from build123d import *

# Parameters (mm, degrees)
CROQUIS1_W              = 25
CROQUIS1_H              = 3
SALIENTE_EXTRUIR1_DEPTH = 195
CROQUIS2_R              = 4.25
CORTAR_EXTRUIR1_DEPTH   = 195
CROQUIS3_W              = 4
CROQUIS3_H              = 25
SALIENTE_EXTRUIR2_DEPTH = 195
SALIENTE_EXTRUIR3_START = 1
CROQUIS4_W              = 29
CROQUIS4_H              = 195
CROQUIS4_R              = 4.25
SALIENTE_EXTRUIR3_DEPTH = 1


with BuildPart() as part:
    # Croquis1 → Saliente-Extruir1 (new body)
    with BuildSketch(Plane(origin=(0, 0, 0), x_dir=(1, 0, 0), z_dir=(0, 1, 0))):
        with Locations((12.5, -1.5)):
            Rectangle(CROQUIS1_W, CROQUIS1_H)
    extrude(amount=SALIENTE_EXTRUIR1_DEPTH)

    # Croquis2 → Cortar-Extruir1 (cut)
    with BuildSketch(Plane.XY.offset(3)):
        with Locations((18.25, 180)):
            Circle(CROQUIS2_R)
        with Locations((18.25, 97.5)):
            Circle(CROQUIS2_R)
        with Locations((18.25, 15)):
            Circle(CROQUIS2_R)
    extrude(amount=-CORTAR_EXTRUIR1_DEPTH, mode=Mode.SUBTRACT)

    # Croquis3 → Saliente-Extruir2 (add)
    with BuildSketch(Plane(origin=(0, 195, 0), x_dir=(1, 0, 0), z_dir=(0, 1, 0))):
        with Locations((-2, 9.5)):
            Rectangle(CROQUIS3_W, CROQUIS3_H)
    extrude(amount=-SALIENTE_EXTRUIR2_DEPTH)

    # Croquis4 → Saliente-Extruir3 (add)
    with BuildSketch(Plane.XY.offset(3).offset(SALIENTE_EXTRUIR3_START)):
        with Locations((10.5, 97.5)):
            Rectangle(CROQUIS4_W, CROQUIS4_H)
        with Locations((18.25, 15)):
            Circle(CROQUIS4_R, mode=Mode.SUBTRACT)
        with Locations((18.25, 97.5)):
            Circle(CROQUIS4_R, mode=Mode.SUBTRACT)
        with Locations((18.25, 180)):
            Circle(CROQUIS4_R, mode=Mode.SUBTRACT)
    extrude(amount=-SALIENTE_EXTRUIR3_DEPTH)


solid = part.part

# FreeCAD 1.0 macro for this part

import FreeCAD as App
import Part
import Sketcher
Q = App.Units.Quantity


def add_polygon(sketch, points):
    """Adds a closed chain of lines whose ends are joined by coincident constraints."""
    first, n = sketch.GeometryCount, len(points)
    for a, b in zip(points, points[1:] + points[:1]):
        sketch.addGeometry(Part.LineSegment(App.Vector(*a, 0), App.Vector(*b, 0)), False)
    for i in range(n):
        sketch.addConstraint(Sketcher.Constraint("Coincident", first + i, 2, first + (i + 1) % n, 1))

doc = App.newDocument("Part")
body = doc.addObject("PartDesign::Body", "Body")

# Sketch on XZ plane
sketch1 = body.newObject("Sketcher::SketchObject", "Sketch")
sketch1.AttachmentSupport = (doc.getObject("XZ_Plane"), [""])
sketch1.MapMode = "FlatFace"
add_polygon(sketch1, [(0, 0), (0, 3), (25, 3), (25, 0)])  # lines 0-3
sketch1.addConstraint([
    Sketcher.Constraint("Vertical", 0),
    Sketcher.Constraint("Horizontal", 1),
    Sketcher.Constraint("Vertical", 2),
    Sketcher.Constraint("Horizontal", 3),
    Sketcher.Constraint("Coincident", 3, 2, -1, 1),
    Sketcher.Constraint("DistanceX", 1, 1, 1, 2, Q("25 mm")),
    Sketcher.Constraint("DistanceY", 0, 1, 0, 2, Q("3 mm")),
])
pad1 = body.newObject("PartDesign::Pad", "Pad")
pad1.Profile = sketch1
pad1.Length = 195
pad1.Reversed = True

# Sketch on XY plane
sketch2 = body.newObject("Sketcher::SketchObject", "Sketch001")
sketch2.AttachmentSupport = (doc.getObject("XY_Plane"), [""])
sketch2.MapMode = "FlatFace"
sketch2.AttachmentOffset = App.Placement(App.Vector(0, 0, 3), App.Rotation())
sketch2.addGeometry([
    Part.Circle(App.Vector(18.2, 180, 0), App.Vector(0, 0, 1), 4.2),
    Part.Circle(App.Vector(18.2, 97.5, 0), App.Vector(0, 0, 1), 4.2),
    Part.Circle(App.Vector(18.2, 15, 0), App.Vector(0, 0, 1), 4.2),
], False)
sketch2.addConstraint([
    Sketcher.Constraint("Equal", 0, 1),
    Sketcher.Constraint("Equal", 1, 2),
    Sketcher.Constraint("Vertical", 0, 3, 1, 3),
    Sketcher.Constraint("Vertical", 1, 3, 2, 3),
    Sketcher.Constraint("Diameter", 0, Q("8.5 mm")),
    Sketcher.Constraint("DistanceY", -1, 1, 0, 3, Q("180 mm")),
    Sketcher.Constraint("DistanceY", -1, 1, 2, 3, Q("15 mm")),
    Sketcher.Constraint("DistanceY", -1, 1, 1, 3, Q("97.5 mm")),
    Sketcher.Constraint("DistanceX", -1, 1, 0, 3, Q("18.25 mm")),
])
pocket1 = body.newObject("PartDesign::Pocket", "Pocket")
pocket1.Profile = sketch2
pocket1.Length = 195

# Sketch on XZ plane
sketch3 = body.newObject("Sketcher::SketchObject", "Sketch002")
sketch3.AttachmentSupport = (doc.getObject("XZ_Plane"), [""])
sketch3.MapMode = "FlatFace"
sketch3.AttachmentOffset = App.Placement(App.Vector(0, 0, -195), App.Rotation())
add_polygon(sketch3, [(-4, -22), (-4, 3), (0, 3), (0, -22)])  # lines 0-3
sketch3.addConstraint([
    Sketcher.Constraint("Vertical", 0),
    Sketcher.Constraint("Horizontal", 1),
    Sketcher.Constraint("Vertical", 2),
    Sketcher.Constraint("Horizontal", 3),
    Sketcher.Constraint("PointOnObject", 1, 2, -2),
    Sketcher.Constraint("DistanceX", 1, 1, 1, 2, Q("4 mm")),
    Sketcher.Constraint("DistanceY", 0, 1, 0, 2, Q("25 mm")),
    Sketcher.Constraint("DistanceY", -1, 1, 0, 2, Q("3 mm")),
])
pad2 = body.newObject("PartDesign::Pad", "Pad001")
pad2.Profile = sketch3
pad2.Length = 195

# Sketch on XY plane
sketch4 = body.newObject("Sketcher::SketchObject", "Sketch003")
sketch4.AttachmentSupport = (doc.getObject("XY_Plane"), [""])
sketch4.MapMode = "FlatFace"
sketch4.AttachmentOffset = App.Placement(App.Vector(0, 0, 4), App.Rotation())
add_polygon(sketch4, [(-4, 195), (-4, 0), (25, 0), (25, 195)])  # lines 0-3
sketch4.addGeometry(Part.Circle(App.Vector(18.2, 15, 0), App.Vector(0, 0, 1), 4.2), False)  # 4
sketch4.addGeometry(Part.Circle(App.Vector(18.2, 97.5, 0), App.Vector(0, 0, 1), 4.2), False)  # 5
sketch4.addGeometry(Part.Circle(App.Vector(18.2, 180, 0), App.Vector(0, 0, 1), 4.2), False)  # 6
sketch4.addConstraint([
    Sketcher.Constraint("Vertical", 0),
    Sketcher.Constraint("Horizontal", 1),
    Sketcher.Constraint("Vertical", 2),
    Sketcher.Constraint("Horizontal", 3),
    Sketcher.Constraint("Equal", 4, 5),
    Sketcher.Constraint("Equal", 5, 6),
    Sketcher.Constraint("PointOnObject", 0, 2, -1),
    Sketcher.Constraint("Vertical", 4, 3, 5, 3),
    Sketcher.Constraint("Vertical", 5, 3, 6, 3),
    Sketcher.Constraint("Diameter", 4, Q("8.5 mm")),
    Sketcher.Constraint("DistanceX", 1, 1, 1, 2, Q("29 mm")),
    Sketcher.Constraint("DistanceY", 0, 2, 0, 1, Q("195 mm")),
    Sketcher.Constraint("DistanceY", -1, 1, 4, 3, Q("15 mm")),
    Sketcher.Constraint("DistanceY", -1, 1, 6, 3, Q("180 mm")),
    Sketcher.Constraint("DistanceX", 0, 2, -1, 1, Q("4 mm")),
    Sketcher.Constraint("DistanceY", -1, 1, 5, 3, Q("97.5 mm")),
    Sketcher.Constraint("DistanceX", -1, 1, 4, 3, Q("18.25 mm")),
])
pad3 = body.newObject("PartDesign::Pad", "Pad002")
pad3.Profile = sketch4
pad3.Length = 1
pad3.Reversed = True

doc.recompute()
